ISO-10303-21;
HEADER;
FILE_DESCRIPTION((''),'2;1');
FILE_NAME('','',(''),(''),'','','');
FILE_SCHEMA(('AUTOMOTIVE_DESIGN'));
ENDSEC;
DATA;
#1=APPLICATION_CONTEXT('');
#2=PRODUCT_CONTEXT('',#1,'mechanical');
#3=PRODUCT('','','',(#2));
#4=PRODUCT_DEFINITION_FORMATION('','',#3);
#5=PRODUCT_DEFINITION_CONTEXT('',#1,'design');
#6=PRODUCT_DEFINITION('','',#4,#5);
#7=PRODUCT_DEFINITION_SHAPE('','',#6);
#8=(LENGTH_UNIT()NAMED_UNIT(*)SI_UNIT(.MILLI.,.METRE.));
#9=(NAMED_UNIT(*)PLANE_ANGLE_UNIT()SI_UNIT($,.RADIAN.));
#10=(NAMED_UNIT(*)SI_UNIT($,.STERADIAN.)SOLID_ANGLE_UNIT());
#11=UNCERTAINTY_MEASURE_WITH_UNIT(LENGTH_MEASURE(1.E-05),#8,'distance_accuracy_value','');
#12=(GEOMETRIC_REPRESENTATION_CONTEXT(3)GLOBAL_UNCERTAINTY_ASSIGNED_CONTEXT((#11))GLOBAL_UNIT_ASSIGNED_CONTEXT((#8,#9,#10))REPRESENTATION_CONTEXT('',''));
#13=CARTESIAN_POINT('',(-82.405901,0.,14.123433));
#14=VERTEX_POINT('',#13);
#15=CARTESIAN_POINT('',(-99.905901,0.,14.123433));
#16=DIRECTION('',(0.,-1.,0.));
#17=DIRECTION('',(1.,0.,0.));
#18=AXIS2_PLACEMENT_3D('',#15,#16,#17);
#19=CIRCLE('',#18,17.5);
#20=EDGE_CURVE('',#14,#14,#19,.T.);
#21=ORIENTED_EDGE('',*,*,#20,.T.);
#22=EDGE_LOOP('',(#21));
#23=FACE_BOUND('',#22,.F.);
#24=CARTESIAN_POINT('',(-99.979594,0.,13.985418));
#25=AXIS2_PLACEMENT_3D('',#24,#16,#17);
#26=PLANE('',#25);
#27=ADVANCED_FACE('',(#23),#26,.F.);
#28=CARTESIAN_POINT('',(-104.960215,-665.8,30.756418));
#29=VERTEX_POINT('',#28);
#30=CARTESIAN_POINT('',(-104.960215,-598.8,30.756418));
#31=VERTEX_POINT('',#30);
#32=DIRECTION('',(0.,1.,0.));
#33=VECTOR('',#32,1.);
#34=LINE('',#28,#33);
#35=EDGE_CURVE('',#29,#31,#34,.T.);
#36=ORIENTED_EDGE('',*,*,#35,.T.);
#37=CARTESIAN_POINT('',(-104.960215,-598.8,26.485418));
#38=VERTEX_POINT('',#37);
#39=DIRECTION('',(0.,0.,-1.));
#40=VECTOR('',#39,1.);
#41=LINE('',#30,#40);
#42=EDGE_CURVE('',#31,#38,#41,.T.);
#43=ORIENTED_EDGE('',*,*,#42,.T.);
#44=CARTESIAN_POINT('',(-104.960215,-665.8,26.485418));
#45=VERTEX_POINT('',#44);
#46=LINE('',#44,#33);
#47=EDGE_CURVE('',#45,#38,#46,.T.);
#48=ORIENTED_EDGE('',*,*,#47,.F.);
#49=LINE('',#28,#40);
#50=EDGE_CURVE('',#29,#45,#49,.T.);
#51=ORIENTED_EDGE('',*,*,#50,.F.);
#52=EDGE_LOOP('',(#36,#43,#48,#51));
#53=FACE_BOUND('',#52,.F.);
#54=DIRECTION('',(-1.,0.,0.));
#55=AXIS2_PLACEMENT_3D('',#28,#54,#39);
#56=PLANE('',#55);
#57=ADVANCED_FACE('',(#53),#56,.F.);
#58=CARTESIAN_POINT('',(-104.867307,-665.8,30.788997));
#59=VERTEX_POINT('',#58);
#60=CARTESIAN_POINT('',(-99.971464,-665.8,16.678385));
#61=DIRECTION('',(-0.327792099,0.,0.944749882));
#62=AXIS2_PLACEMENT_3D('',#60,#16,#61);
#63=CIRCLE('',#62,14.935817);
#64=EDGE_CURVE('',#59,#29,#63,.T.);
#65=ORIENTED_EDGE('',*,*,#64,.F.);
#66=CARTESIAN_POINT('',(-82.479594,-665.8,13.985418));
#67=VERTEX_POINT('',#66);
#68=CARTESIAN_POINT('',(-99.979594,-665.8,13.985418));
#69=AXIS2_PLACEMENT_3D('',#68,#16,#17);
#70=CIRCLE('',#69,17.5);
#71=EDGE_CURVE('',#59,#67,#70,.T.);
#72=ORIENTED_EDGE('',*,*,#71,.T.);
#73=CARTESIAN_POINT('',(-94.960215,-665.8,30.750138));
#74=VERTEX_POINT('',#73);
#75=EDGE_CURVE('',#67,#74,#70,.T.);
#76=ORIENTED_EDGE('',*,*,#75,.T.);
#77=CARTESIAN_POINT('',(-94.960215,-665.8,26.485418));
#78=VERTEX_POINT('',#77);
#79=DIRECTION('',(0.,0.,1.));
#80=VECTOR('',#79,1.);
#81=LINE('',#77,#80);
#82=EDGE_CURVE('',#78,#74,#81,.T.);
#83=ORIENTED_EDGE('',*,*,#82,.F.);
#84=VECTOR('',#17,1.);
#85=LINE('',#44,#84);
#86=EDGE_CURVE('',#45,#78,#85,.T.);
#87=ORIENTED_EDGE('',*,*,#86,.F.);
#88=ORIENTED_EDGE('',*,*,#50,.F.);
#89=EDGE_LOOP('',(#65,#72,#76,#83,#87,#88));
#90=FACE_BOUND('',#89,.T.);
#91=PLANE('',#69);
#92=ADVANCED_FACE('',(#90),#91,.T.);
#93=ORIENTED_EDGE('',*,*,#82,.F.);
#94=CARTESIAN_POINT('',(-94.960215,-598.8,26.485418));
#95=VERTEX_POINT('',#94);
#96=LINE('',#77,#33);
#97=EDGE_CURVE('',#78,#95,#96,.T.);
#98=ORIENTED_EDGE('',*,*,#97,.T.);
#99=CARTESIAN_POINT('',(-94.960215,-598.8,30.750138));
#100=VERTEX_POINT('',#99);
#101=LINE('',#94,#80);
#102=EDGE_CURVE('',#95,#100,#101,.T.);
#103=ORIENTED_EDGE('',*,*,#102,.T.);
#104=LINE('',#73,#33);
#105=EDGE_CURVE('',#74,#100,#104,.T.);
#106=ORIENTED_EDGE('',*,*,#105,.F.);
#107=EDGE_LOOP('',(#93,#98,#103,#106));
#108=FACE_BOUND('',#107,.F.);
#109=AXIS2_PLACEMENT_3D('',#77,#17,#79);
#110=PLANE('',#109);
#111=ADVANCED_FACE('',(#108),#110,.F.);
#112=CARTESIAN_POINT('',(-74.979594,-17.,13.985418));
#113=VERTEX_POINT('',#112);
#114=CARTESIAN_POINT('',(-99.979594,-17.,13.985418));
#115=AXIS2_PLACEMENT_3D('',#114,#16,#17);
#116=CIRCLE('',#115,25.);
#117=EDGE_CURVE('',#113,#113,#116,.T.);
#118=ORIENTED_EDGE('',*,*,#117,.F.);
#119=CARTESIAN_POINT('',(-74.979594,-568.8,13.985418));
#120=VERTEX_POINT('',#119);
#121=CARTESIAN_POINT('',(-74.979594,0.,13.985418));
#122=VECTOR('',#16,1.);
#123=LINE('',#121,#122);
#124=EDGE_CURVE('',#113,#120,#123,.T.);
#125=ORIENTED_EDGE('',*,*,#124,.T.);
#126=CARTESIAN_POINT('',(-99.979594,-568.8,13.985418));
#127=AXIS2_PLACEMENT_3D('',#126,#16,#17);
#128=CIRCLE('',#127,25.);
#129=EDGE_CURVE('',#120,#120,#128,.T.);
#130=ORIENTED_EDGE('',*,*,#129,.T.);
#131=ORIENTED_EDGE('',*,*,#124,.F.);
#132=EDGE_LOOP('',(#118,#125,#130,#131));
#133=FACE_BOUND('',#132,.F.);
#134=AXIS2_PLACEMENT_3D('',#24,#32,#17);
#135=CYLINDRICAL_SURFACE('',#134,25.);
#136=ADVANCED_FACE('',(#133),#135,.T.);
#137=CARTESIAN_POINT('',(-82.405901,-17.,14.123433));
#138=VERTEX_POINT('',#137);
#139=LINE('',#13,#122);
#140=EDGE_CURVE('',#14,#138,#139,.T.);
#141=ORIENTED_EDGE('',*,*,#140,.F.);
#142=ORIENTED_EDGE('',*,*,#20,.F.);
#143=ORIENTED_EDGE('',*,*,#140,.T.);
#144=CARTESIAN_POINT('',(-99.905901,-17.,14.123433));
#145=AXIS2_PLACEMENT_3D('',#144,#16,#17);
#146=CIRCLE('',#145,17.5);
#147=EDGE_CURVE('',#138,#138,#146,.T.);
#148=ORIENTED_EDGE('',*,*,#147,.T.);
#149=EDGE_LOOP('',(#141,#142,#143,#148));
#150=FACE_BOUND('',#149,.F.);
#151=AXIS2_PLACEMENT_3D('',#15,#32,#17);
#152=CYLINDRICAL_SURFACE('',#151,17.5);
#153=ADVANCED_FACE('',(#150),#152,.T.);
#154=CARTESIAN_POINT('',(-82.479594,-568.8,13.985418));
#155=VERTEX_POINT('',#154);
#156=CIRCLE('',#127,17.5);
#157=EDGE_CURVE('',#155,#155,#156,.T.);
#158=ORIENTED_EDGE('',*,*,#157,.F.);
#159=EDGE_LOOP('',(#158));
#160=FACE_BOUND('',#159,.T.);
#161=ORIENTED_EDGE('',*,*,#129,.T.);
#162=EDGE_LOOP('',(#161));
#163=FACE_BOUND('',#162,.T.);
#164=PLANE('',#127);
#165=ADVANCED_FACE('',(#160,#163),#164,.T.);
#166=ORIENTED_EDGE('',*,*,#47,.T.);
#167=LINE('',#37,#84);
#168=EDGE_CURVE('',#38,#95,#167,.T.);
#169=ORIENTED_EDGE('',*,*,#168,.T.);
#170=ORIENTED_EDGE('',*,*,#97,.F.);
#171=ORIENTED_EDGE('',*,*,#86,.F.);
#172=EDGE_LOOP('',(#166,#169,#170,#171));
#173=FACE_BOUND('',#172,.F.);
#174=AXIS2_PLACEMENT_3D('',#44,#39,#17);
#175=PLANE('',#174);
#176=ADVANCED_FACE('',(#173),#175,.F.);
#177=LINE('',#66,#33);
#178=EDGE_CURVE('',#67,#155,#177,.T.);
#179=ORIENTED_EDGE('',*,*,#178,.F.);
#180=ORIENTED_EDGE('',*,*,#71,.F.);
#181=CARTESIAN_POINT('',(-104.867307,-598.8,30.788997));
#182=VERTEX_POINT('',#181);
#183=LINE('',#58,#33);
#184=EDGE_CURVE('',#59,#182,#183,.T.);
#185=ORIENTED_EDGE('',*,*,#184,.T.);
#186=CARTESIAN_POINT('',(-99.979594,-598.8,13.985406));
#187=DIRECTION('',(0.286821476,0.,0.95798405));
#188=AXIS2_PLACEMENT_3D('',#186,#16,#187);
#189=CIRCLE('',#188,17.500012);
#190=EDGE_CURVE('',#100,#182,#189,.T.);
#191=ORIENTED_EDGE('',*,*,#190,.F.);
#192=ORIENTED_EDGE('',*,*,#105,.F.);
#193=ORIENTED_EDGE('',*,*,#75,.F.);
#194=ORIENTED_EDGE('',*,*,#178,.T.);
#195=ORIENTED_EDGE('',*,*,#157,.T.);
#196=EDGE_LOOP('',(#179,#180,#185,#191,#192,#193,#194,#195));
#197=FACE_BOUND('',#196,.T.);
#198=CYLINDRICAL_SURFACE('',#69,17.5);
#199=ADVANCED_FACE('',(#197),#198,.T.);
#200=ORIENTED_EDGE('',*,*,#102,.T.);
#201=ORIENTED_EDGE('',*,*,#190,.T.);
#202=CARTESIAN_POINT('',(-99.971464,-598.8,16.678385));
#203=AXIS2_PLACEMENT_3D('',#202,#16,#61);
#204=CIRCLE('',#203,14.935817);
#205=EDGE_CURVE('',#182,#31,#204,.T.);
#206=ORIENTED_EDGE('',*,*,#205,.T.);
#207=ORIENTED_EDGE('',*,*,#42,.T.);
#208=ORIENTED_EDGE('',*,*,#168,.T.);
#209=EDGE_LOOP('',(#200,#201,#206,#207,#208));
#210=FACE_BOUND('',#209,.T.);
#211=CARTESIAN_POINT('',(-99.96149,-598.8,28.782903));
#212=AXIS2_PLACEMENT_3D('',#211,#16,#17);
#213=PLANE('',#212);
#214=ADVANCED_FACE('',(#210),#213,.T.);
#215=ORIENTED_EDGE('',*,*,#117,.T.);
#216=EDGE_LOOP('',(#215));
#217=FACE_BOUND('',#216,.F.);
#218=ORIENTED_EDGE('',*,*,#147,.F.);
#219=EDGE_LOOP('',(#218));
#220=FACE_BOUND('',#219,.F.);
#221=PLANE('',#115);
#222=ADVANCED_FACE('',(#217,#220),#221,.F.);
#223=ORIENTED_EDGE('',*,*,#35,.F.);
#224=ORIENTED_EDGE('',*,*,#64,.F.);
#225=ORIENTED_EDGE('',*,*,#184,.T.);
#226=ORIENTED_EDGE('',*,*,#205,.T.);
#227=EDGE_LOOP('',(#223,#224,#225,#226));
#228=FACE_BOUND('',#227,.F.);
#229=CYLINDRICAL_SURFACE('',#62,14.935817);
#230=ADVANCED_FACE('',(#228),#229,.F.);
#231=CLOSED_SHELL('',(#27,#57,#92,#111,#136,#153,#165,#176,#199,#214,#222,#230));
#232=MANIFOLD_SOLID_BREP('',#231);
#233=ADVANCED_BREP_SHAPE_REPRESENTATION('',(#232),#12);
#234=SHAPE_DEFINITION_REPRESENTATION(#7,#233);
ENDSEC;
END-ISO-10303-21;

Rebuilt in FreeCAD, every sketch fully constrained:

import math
import FreeCAD as App
import Part
import Sketcher
from FreeCAD import Vector

doc = App.newDocument("Part")
params = doc.addObject("Spreadsheet::Sheet", "Params")
for row, (alias, value) in enumerate([
    ("sketch1_diameter", "50 mm"),
    ("pad1_length", "665.8 mm"),
    ("sketch2_diameter", "50 mm"),
    ("sketch2_diameter2", "35 mm"),
    ("pocket1_length", "97 mm"),
    ("sketch3_diameter", "50 mm"),
    ("sketch3_diameter2", "35 mm"),
    ("pocket2_length", "17 mm"),
    ("sketch4_width", "10 mm"),
    ("pocket3_length", "67 mm"),
], start=1):
    params.set(f"A{row}", alias)
    params.set(f"B{row}", "=" + value)
    params.setAlias(f"B{row}", alias)

body = doc.addObject("PartDesign::Body", "Body")

# Sketch on XZ plane
sketch1 = body.newObject("Sketcher::SketchObject", "Sketch")
sketch1.AttachmentSupport = (doc.getObject("XZ_Plane"), [""])
sketch1.MapMode = "FlatFace"
sketch1.addGeometry(Part.Circle(Vector(-100, 14, 0), Vector(0, 0, 1), 25), False)
sketch1.addConstraint(Sketcher.Constraint("Diameter", 0, 50.0))
sketch1.addConstraint(Sketcher.Constraint("DistanceX", 0, 3, -1, 1, 99.979594))
sketch1.addConstraint(Sketcher.Constraint("DistanceY", -1, 1, 0, 3, 13.985418))
sketch1.setExpression("Constraints[0]", "Params.sketch1_diameter")
pad1 = body.newObject("PartDesign::Pad", "Pad")
pad1.Profile = sketch1
pad1.setExpression("Length", "Params.pad1_length")

# Sketch on XZ plane
sketch2 = body.newObject("Sketcher::SketchObject", "Sketch001")
sketch2.AttachmentSupport = (doc.getObject("XZ_Plane"), [""])
sketch2.MapMode = "FlatFace"
sketch2.AttachmentOffset = App.Placement(Vector(0, 0, 665.8), App.Rotation())
sketch2.addGeometry(Part.Circle(Vector(-100, 14, 0), Vector(0, 0, 1), 25), False)
sketch2.addGeometry(Part.Circle(Vector(-100, 14, 0), Vector(0, 0, 1), 18), False)
sketch2.addConstraint(Sketcher.Constraint("Coincident", 1, 3, 0, 3))
sketch2.addConstraint(Sketcher.Constraint("Diameter", 0, 50.0))
sketch2.addConstraint(Sketcher.Constraint("Diameter", 1, 35.0))
sketch2.addConstraint(Sketcher.Constraint("DistanceX", 0, 3, -1, 1, 99.979594))
sketch2.addConstraint(Sketcher.Constraint("DistanceY", -1, 1, 0, 3, 13.985418))
sketch2.setExpression("Constraints[1]", "Params.sketch2_diameter")
sketch2.setExpression("Constraints[2]", "Params.sketch2_diameter2")
pocket1 = body.newObject("PartDesign::Pocket", "Pocket")
pocket1.Profile = sketch2
pocket1.setExpression("Length", "Params.pocket1_length")

# Sketch on XZ plane
sketch3 = body.newObject("Sketcher::SketchObject", "Sketch002")
sketch3.AttachmentSupport = (doc.getObject("XZ_Plane"), [""])
sketch3.MapMode = "FlatFace"
sketch3.addGeometry(Part.Circle(Vector(-100, 14, 0), Vector(0, 0, 1), 25), False)
sketch3.addGeometry(Part.Circle(Vector(-100, 14, 0), Vector(0, 0, 1), 18), False)
sketch3.addConstraint(Sketcher.Constraint("Diameter", 0, 50.0))
sketch3.addConstraint(Sketcher.Constraint("Diameter", 1, 35.0))
sketch3.addConstraint(Sketcher.Constraint("DistanceX", 1, 3, -1, 1, 99.905901))
sketch3.addConstraint(Sketcher.Constraint("DistanceX", 0, 3, -1, 1, 99.979594))
sketch3.addConstraint(Sketcher.Constraint("DistanceY", -1, 1, 0, 3, 13.985418))
sketch3.addConstraint(Sketcher.Constraint("DistanceY", -1, 1, 1, 3, 14.123433))
sketch3.setExpression("Constraints[0]", "Params.sketch3_diameter")
sketch3.setExpression("Constraints[1]", "Params.sketch3_diameter2")
pocket2 = body.newObject("PartDesign::Pocket", "Pocket001")
pocket2.Profile = sketch3
pocket2.setExpression("Length", "Params.pocket2_length")
pocket2.Reversed = True

# Sketch on XZ plane
sketch4 = body.newObject("Sketcher::SketchObject", "Sketch003")
sketch4.AttachmentSupport = (doc.getObject("XZ_Plane"), [""])
sketch4.MapMode = "FlatFace"
sketch4.AttachmentOffset = App.Placement(Vector(0, 0, 665.8), App.Rotation())
sketch4.addGeometry(Part.LineSegment(Vector(-104.96, 30.76, 0), Vector(-104.96, 26.49, 0)), False)
sketch4.addGeometry(Part.LineSegment(Vector(-104.96, 26.49, 0), Vector(-94.96, 26.49, 0)), False)
sketch4.addGeometry(Part.LineSegment(Vector(-94.96, 26.49, 0), Vector(-94.96, 30.75, 0)), False)
sketch4.addGeometry(Part.ArcOfCircle(Part.Circle(Vector(-99.98, 13.99, 0), Vector(0, 0, 1), 17.5), math.radians(73), math.radians(106)), False)
sketch4.addGeometry(Part.ArcOfCircle(Part.Circle(Vector(-99.97, 16.68, 0), Vector(0, 0, 1), 14.94), math.radians(109.13), math.radians(109.51)), False)
sketch4.addConstraint(Sketcher.Constraint("Coincident", 0, 2, 1, 1))
sketch4.addConstraint(Sketcher.Constraint("Coincident", 1, 2, 2, 1))
sketch4.addConstraint(Sketcher.Constraint("Coincident", 2, 2, 3, 1))
sketch4.addConstraint(Sketcher.Constraint("Coincident", 3, 2, 4, 1))
sketch4.addConstraint(Sketcher.Constraint("Coincident", 4, 2, 0, 1))
sketch4.addConstraint(Sketcher.Constraint("Vertical", 0))
sketch4.addConstraint(Sketcher.Constraint("Horizontal", 1))
sketch4.addConstraint(Sketcher.Constraint("Vertical", 2))
sketch4.addConstraint(Sketcher.Constraint("DistanceX", 1, 1, 1, 2, 10.0))
sketch4.addConstraint(Sketcher.Constraint("DistanceY", 0, 2, 0, 1, 4.271))
sketch4.addConstraint(Sketcher.Constraint("Radius", 3, 17.500012))
sketch4.addConstraint(Sketcher.Constraint("Radius", 4, 14.935817))
sketch4.addConstraint(Sketcher.Constraint("DistanceY", 2, 1, 2, 2, 4.26472))
sketch4.addConstraint(Sketcher.Constraint("DistanceY", -1, 1, 2, 2, 30.750138))
sketch4.addConstraint(Sketcher.Constraint("DistanceX", 3, 3, 4, 3, 0.00813))
sketch4.addConstraint(Sketcher.Constraint("DistanceY", 3, 3, 4, 3, 2.692979))
sketch4.addConstraint(Sketcher.Constraint("DistanceX", 3, 3, -1, 1, 99.979594))
sketch4.setExpression("Constraints[8]", "Params.sketch4_width")
pocket3 = body.newObject("PartDesign::Pocket", "Pocket002")
pocket3.Profile = sketch4
pocket3.setExpression("Length", "Params.pocket3_length")

doc.recompute()
